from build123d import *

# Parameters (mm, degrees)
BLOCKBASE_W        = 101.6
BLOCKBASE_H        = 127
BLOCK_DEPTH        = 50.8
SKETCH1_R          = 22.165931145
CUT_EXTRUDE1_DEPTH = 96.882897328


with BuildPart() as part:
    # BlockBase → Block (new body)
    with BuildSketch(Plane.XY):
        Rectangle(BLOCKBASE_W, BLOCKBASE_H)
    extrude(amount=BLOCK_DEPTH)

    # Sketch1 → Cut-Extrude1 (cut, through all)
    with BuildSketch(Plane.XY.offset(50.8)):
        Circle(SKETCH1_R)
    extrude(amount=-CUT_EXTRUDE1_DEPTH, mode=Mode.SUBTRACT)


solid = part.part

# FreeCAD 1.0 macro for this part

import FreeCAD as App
import Part
import Sketcher
Q = App.Units.Quantity

doc = App.newDocument("Part")
params = doc.addObject("Spreadsheet::Sheet", "Params")
for row, (alias, value) in enumerate([
    ("sketch1_width", "4 in"),
    ("sketch1_height", "5 in"),
    ("pad1_length", "2 in"),
], start=1):
    params.set(f"A{row}", alias)
    params.set(f"B{row}", "=" + value)
    params.setAlias(f"B{row}", alias)

body = doc.addObject("PartDesign::Body", "Body")

# Sketch on XY plane
sketch1 = doc.addObject("Sketcher::SketchObject", "Sketch")
body.addObject(sketch1)
sketch1.AttachmentSupport = (doc.XY_Plane, [""])
sketch1.MapMode = "FlatFace"
sketch1.addGeometry([
    Part.LineSegment(App.Vector(-51, 64, 0), App.Vector(-51, -64, 0)),
    Part.LineSegment(App.Vector(-51, -64, 0), App.Vector(51, -64, 0)),
    Part.LineSegment(App.Vector(51, -64, 0), App.Vector(51, 64, 0)),
    Part.LineSegment(App.Vector(51, 64, 0), App.Vector(-51, 64, 0)),
], False)
sketch1.addConstraint([
    Sketcher.Constraint("Coincident", 0, 2, 1, 1),
    Sketcher.Constraint("Coincident", 1, 2, 2, 1),
    Sketcher.Constraint("Coincident", 2, 2, 3, 1),
    Sketcher.Constraint("Coincident", 3, 2, 0, 1),
    Sketcher.Constraint("Vertical", 0),
    Sketcher.Constraint("Horizontal", 1),
    Sketcher.Constraint("Vertical", 2),
    Sketcher.Constraint("Horizontal", 3),
    Sketcher.Constraint("Symmetric", 0, 2, 2, 2, -1, 1),
    Sketcher.Constraint("DistanceX", 1, 1, 1, 2, Q("4 in")),
    Sketcher.Constraint("DistanceY", 0, 2, 0, 1, Q("5 in")),
])
sketch1.setExpression("Constraints[9]", "Params.sketch1_width")
sketch1.setExpression("Constraints[10]", "Params.sketch1_height")
pad1 = doc.addObject("PartDesign::Pad", "Pad")
body.addObject(pad1)
pad1.Profile = sketch1
pad1.setExpression("Length", "Params.pad1_length")

# Sketch on XY plane
sketch2 = doc.addObject("Sketcher::SketchObject", "Sketch001")
body.addObject(sketch2)
sketch2.AttachmentSupport = (doc.XY_Plane, [""])
sketch2.MapMode = "FlatFace"
sketch2.AttachmentOffset = App.Placement(App.Vector(0, 0, 2 * 25.4), App.Rotation())
sketch2.addGeometry(Part.Circle(App.Vector(0, 0, 0), App.Vector(0, 0, 1), 22), False)
sketch2.addConstraint([
    Sketcher.Constraint("Coincident", 0, 3, -1, 1),
    Sketcher.Constraint("Diameter", 0, 44.331862),
])
pocket1 = doc.addObject("PartDesign::Pocket", "Pocket")
body.addObject(pocket1)
pocket1.Profile = sketch2
pocket1.Type = "ThroughAll"

doc.recompute()
